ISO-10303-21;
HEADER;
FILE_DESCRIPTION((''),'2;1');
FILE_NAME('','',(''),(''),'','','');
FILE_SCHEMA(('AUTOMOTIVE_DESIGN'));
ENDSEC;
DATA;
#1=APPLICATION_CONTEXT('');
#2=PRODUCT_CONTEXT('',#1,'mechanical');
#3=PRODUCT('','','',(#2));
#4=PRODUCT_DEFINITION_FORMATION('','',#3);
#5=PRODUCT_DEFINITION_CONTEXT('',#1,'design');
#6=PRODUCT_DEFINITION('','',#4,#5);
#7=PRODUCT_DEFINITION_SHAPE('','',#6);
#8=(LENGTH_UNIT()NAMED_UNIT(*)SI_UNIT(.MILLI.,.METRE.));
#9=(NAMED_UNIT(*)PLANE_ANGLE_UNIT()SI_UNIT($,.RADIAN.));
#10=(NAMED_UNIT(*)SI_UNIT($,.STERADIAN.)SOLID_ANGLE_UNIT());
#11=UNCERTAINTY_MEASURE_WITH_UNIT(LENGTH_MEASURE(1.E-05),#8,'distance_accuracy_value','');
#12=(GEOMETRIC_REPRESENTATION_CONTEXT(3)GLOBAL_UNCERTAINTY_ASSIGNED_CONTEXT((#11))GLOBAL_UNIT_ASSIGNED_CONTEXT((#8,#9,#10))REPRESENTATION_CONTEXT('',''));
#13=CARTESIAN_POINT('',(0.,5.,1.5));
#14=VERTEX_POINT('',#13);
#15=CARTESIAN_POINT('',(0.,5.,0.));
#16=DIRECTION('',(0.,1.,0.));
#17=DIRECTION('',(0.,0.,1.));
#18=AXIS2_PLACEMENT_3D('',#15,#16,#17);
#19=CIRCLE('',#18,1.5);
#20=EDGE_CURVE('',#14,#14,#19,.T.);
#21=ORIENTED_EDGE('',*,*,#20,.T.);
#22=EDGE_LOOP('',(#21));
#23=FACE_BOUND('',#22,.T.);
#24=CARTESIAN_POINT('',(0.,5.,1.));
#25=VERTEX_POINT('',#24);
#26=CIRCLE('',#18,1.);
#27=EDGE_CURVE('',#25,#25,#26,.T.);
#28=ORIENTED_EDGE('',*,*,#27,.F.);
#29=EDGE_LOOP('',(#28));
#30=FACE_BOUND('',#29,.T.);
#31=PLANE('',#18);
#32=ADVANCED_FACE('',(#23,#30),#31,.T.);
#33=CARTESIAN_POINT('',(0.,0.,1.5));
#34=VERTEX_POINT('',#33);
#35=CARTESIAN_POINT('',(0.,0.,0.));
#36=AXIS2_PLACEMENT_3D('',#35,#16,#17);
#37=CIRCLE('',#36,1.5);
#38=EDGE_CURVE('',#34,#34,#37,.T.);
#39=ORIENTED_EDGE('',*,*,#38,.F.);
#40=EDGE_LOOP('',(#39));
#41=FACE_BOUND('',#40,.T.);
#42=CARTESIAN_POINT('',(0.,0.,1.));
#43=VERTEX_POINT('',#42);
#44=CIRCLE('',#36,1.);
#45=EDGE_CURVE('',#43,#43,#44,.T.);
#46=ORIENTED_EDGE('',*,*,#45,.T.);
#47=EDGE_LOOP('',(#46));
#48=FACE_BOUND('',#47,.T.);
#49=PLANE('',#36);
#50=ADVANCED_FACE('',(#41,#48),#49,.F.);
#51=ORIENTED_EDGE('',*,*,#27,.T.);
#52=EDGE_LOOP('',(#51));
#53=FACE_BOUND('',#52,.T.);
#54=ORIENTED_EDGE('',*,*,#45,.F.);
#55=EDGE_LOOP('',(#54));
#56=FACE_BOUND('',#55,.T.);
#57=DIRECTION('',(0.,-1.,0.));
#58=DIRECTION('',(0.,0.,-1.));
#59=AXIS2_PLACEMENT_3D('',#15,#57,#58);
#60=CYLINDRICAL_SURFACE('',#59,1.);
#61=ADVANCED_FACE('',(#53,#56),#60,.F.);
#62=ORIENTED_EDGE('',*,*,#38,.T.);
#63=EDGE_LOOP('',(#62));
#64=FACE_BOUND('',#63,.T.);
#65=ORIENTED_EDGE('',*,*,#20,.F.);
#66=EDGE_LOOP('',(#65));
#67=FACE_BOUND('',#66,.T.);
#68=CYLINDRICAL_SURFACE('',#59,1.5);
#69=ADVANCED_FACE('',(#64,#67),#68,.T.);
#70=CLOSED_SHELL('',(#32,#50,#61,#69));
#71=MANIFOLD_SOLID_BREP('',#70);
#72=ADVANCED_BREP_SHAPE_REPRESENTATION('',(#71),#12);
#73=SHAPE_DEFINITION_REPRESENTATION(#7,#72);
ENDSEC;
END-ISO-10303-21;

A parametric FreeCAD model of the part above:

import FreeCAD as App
import Part
import Sketcher
Q = App.Units.Quantity

doc = App.newDocument("Part")
params = doc.addObject("Spreadsheet::Sheet", "Params")
for row, (alias, value) in enumerate([
    ("sketch1_diameter", "3 mm"),
    ("sketch1_diameter2", "2 mm"),
    ("pad1_length", "5 mm"),
], start=1):
    params.set(f"A{row}", alias)
    params.set(f"B{row}", "=" + value)
    params.setAlias(f"B{row}", alias)

body = doc.addObject("PartDesign::Body", "Body")

# Sketch on XZ plane
sketch1 = body.newObject("Sketcher::SketchObject", "Sketch")
sketch1.AttachmentSupport = (doc.getObject("XZ_Plane"), [""])
sketch1.MapMode = "FlatFace"
sketch1.addGeometry([
    Part.Circle(App.Vector(0, 0, 0), App.Vector(0, 0, 1), 1.5),
    Part.Circle(App.Vector(0, 0, 0), App.Vector(0, 0, 1), 1),
], False)
sketch1.addConstraint([
    Sketcher.Constraint("Coincident", 0, 3, -1, 1),
    Sketcher.Constraint("Coincident", 1, 3, -1, 1),
    Sketcher.Constraint("Diameter", 0, Q("3 mm")),
    Sketcher.Constraint("Diameter", 1, Q("2 mm")),
])
sketch1.setExpression("Constraints[2]", "Params.sketch1_diameter")
sketch1.setExpression("Constraints[3]", "Params.sketch1_diameter2")
pad1 = body.newObject("PartDesign::Pad", "Pad")
pad1.Profile = sketch1
pad1.setExpression("Length", "Params.pad1_length")
pad1.Reversed = True

doc.recompute()
